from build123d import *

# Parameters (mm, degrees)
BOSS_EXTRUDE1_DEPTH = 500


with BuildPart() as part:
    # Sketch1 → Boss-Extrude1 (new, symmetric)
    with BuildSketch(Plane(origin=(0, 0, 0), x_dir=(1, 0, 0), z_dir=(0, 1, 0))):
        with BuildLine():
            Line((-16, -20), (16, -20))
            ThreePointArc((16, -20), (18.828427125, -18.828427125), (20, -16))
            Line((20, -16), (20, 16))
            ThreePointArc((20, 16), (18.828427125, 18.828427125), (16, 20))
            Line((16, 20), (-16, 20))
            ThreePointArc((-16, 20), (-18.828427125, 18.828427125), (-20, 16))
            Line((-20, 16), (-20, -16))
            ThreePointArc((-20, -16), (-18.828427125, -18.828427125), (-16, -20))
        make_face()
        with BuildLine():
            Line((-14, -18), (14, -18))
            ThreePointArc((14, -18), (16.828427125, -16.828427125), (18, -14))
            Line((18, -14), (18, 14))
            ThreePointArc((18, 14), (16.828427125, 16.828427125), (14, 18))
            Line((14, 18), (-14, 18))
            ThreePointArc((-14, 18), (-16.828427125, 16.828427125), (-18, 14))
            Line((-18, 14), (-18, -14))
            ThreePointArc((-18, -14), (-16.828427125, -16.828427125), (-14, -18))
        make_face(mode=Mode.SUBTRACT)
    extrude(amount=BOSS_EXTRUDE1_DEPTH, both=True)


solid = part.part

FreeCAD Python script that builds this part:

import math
import FreeCAD as App
import Part
import Sketcher

V = App.Vector
Q = App.Units.Quantity

doc = App.newDocument("Part")
body = doc.addObject("PartDesign::Body", "Body")

sketch1 = body.newObject("Sketcher::SketchObject", "Sketch")
sketch1.AttachmentSupport = (doc.getObject("XZ_Plane"), [""])
sketch1.MapMode = "FlatFace"
sketch1.addGeometry([
    Part.LineSegment(V(-16, 20, 0), V(16, 20, 0)),
    Part.ArcOfCircle(Part.Circle(V(16, 16, 0), V(0, 0, 1), 4), math.radians(0), math.radians(90)),
    Part.LineSegment(V(20, 16, 0), V(20, -16, 0)),
    Part.ArcOfCircle(Part.Circle(V(16, -16, 0), V(0, 0, 1), 4), math.radians(-90), math.radians(0)),
    Part.LineSegment(V(16, -20, 0), V(-16, -20, 0)),
    Part.ArcOfCircle(Part.Circle(V(-16, -16, 0), V(0, 0, 1), 4), math.radians(180), math.radians(270)),
    Part.LineSegment(V(-20, -16, 0), V(-20, 16, 0)),
    Part.ArcOfCircle(Part.Circle(V(-16, 16, 0), V(0, 0, 1), 4), math.radians(90), math.radians(180)),
    Part.LineSegment(V(14, 18, 0), V(-14, 18, 0)),
    Part.ArcOfCircle(Part.Circle(V(-14, 14, 0), V(0, 0, 1), 4), math.radians(90), math.radians(180)),
    Part.LineSegment(V(-18, 14, 0), V(-18, -14, 0)),
    Part.ArcOfCircle(Part.Circle(V(-14, -14, 0), V(0, 0, 1), 4), math.radians(180), math.radians(270)),
    Part.LineSegment(V(-14, -18, 0), V(14, -18, 0)),
    Part.ArcOfCircle(Part.Circle(V(14, -14, 0), V(0, 0, 1), 4), math.radians(-90), math.radians(0)),
    Part.LineSegment(V(18, -14, 0), V(18, 14, 0)),
    Part.ArcOfCircle(Part.Circle(V(14, 14, 0), V(0, 0, 1), 4), math.radians(0), math.radians(90)),
], False)
sketch1.addConstraint([
    Sketcher.Constraint("Tangent", 0, 2, 1, 2),
    Sketcher.Constraint("Tangent", 1, 1, 2, 1),
    Sketcher.Constraint("Tangent", 2, 2, 3, 2),
    Sketcher.Constraint("Tangent", 3, 1, 4, 1),
    Sketcher.Constraint("Tangent", 4, 2, 5, 2),
    Sketcher.Constraint("Tangent", 5, 1, 6, 1),
    Sketcher.Constraint("Tangent", 6, 2, 7, 2),
    Sketcher.Constraint("Tangent", 7, 1, 0, 1),
    Sketcher.Constraint("Tangent", 8, 2, 9, 1),
    Sketcher.Constraint("Tangent", 9, 2, 10, 1),
    Sketcher.Constraint("Tangent", 10, 2, 11, 1),
    Sketcher.Constraint("Tangent", 11, 2, 12, 1),
    Sketcher.Constraint("Tangent", 12, 2, 13, 1),
    Sketcher.Constraint("Tangent", 13, 2, 14, 1),
    Sketcher.Constraint("Tangent", 14, 2, 15, 1),
    Sketcher.Constraint("Tangent", 15, 2, 8, 1),
    Sketcher.Constraint("Horizontal", 0),
    Sketcher.Constraint("Vertical", 2),
    Sketcher.Constraint("Horizontal", 4),
    Sketcher.Constraint("Vertical", 6),
    Sketcher.Constraint("Horizontal", 8),
    Sketcher.Constraint("Vertical", 10),
    Sketcher.Constraint("Horizontal", 12),
    Sketcher.Constraint("Vertical", 14),
    Sketcher.Constraint("Equal", 1, 3),
    Sketcher.Constraint("Equal", 3, 5),
    Sketcher.Constraint("Equal", 5, 7),
    Sketcher.Constraint("Equal", 7, 9),
    Sketcher.Constraint("Equal", 9, 11),
    Sketcher.Constraint("Equal", 11, 13),
    Sketcher.Constraint("Equal", 13, 15),
    Sketcher.Constraint("Symmetric", 1, 3, 5, 3, -1, 1),
    Sketcher.Constraint("Symmetric", 9, 3, 13, 3, -1, 1),
    Sketcher.Constraint("Equal", 4, 2),
    Sketcher.Constraint("Equal", 12, 10),
    Sketcher.Constraint("Radius", 1, Q("4 mm")),
    Sketcher.Constraint("DistanceX", 0, 1, 0, 2, Q("32 mm")),
    Sketcher.Constraint("DistanceX", 8, 2, 8, 1, Q("28 mm")),
])
pad1 = body.newObject("PartDesign::Pad", "Pad")
pad1.Profile = sketch1
pad1.Length = 1000
pad1.Midplane = True

doc.recompute()
